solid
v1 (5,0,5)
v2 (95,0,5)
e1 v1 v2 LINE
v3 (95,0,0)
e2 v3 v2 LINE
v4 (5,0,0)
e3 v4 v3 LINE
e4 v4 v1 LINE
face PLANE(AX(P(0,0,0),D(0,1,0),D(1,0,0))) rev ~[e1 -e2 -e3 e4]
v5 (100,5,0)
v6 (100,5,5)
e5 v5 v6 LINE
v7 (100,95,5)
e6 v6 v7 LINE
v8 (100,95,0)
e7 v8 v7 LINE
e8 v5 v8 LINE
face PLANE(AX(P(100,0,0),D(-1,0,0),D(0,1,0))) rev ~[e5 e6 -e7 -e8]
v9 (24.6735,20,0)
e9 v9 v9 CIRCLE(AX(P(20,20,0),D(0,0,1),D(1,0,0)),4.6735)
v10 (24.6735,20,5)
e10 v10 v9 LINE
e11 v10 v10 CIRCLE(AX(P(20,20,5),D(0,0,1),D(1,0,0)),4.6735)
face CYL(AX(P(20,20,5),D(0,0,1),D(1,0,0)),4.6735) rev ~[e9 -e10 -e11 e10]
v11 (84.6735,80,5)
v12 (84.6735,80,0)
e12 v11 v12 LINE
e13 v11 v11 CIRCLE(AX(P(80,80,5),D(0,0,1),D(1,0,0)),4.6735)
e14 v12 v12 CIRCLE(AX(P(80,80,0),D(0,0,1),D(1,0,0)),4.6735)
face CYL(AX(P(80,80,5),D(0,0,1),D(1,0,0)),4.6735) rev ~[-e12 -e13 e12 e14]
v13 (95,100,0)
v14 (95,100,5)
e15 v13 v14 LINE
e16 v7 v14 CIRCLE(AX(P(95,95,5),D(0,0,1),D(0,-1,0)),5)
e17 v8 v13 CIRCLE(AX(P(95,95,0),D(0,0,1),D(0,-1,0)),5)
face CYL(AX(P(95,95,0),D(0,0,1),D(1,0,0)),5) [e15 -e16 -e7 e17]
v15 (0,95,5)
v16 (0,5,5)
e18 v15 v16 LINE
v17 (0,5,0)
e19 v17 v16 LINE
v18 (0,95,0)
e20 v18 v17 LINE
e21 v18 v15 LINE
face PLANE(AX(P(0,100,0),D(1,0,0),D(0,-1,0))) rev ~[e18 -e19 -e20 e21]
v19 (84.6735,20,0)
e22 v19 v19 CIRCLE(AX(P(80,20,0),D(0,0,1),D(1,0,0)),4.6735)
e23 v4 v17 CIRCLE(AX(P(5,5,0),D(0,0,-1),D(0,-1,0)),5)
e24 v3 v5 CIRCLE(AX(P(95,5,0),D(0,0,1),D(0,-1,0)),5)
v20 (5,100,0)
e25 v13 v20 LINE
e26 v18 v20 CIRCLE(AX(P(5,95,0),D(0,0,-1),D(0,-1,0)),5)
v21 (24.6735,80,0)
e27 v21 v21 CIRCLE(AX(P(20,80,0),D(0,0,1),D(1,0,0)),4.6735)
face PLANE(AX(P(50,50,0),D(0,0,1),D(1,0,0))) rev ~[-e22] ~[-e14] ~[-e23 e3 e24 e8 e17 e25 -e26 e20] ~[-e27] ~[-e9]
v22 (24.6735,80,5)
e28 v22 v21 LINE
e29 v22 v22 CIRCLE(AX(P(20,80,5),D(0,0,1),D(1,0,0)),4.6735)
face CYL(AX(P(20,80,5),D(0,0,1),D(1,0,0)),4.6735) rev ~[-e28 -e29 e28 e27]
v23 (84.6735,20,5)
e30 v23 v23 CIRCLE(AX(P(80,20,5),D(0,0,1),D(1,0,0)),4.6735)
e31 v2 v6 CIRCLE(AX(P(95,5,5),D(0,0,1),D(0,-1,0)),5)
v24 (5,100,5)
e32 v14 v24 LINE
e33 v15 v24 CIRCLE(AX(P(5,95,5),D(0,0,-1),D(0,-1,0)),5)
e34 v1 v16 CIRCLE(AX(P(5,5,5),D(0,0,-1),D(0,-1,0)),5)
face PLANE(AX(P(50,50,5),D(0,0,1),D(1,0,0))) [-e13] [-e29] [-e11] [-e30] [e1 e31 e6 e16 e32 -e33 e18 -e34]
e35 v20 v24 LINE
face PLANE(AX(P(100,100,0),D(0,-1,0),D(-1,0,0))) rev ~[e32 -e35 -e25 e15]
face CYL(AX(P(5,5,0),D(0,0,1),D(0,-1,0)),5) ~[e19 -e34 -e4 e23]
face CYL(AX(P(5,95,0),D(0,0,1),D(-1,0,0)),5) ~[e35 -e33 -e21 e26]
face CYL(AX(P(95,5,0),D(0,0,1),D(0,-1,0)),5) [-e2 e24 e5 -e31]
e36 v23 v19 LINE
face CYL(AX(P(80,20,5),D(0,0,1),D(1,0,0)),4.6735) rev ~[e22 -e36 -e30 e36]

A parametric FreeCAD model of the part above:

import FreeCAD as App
import Part
import Sketcher


def edges_at(feature, points):
    """Names of the edges that pass closest to the given points."""
    edges = feature.Shape.Edges
    near = lambda p: min(range(len(edges)), key=lambda i: edges[i].distToShape(Part.Vertex(*p))[0])
    return sorted({f"Edge{near(p) + 1}" for p in points})

doc = App.newDocument("Part")
params = doc.addObject("Spreadsheet::Sheet", "Params")
for row, (alias, value) in enumerate([
    ("sketch1_width", "100 mm"),
    ("pad1_length", "5 mm"),
    ("fillet_radius", "5 mm"),
], start=1):
    params.set(f"A{row}", alias)
    params.set(f"B{row}", "=" + value)
    params.setAlias(f"B{row}", alias)

body = doc.addObject("PartDesign::Body", "Body")

# Sketch on XY plane
sketch1 = doc.addObject("Sketcher::SketchObject", "Sketch")
body.addObject(sketch1)
sketch1.AttachmentSupport = (doc.XY_Plane, [""])
sketch1.MapMode = "FlatFace"
sketch1.addGeometry([
    Part.LineSegment(App.Vector(0, 100, 0), App.Vector(0, 0, 0)),
    Part.LineSegment(App.Vector(0, 0, 0), App.Vector(100, 0, 0)),
    Part.LineSegment(App.Vector(100, 0, 0), App.Vector(100, 100, 0)),
    Part.LineSegment(App.Vector(100, 100, 0), App.Vector(0, 100, 0)),
], False)
sketch1.addConstraint([
    Sketcher.Constraint("Coincident", 0, 2, 1, 1),
    Sketcher.Constraint("Coincident", 1, 2, 2, 1),
    Sketcher.Constraint("Coincident", 2, 2, 3, 1),
    Sketcher.Constraint("Coincident", 3, 2, 0, 1),
    Sketcher.Constraint("Vertical", 0),
    Sketcher.Constraint("Horizontal", 1),
    Sketcher.Constraint("Vertical", 2),
    Sketcher.Constraint("Horizontal", 3),
    Sketcher.Constraint("Coincident", 0, 2, -1, 1),
    Sketcher.Constraint("Equal", 3, 0),
    Sketcher.Constraint("DistanceX", 1, 1, 1, 2, 100.0),
])
sketch1.setExpression("Constraints[10]", "Params.sketch1_width")
pad1 = doc.addObject("PartDesign::Pad", "Pad")
body.addObject(pad1)
pad1.Profile = sketch1
pad1.setExpression("Length", "Params.pad1_length")

# Sketch on XY plane
sketch2 = doc.addObject("Sketcher::SketchObject", "Sketch001")
body.addObject(sketch2)
sketch2.AttachmentSupport = (doc.XY_Plane, [""])
sketch2.MapMode = "FlatFace"
sketch2.AttachmentOffset = App.Placement(App.Vector(0, 0, 5), App.Rotation())
sketch2.addGeometry([
    Part.Circle(App.Vector(20, 80, 0), App.Vector(0, 0, 1), 4.6735),
    Part.Circle(App.Vector(80, 80, 0), App.Vector(0, 0, 1), 4.6735),
    Part.Circle(App.Vector(80, 20, 0), App.Vector(0, 0, 1), 4.6735),
    Part.Circle(App.Vector(20, 20, 0), App.Vector(0, 0, 1), 4.6735),
], False)
sketch2.addConstraint([
    Sketcher.Constraint("Equal", 0, 1),
    Sketcher.Constraint("Equal", 1, 2),
    Sketcher.Constraint("Equal", 2, 3),
    Sketcher.Constraint("Horizontal", 0, 3, 1, 3),
    Sketcher.Constraint("Horizontal", 2, 3, 3, 3),
    Sketcher.Constraint("Vertical", 1, 3, 2, 3),
    Sketcher.Constraint("Vertical", 0, 3, 3, 3),
    Sketcher.Constraint("Diameter", 0, 9.347),
    Sketcher.Constraint("DistanceX", -1, 1, 0, 3, 20.0),
    Sketcher.Constraint("DistanceY", -1, 1, 0, 3, 80.0),
    Sketcher.Constraint("DistanceX", -1, 1, 1, 3, 80.0),
    Sketcher.Constraint("DistanceY", -1, 1, 2, 3, 20.0),
])
pocket1 = doc.addObject("PartDesign::Pocket", "Pocket")
body.addObject(pocket1)
pocket1.Profile = sketch2
pocket1.Type = "ThroughAll"
doc.recompute()

fillet = doc.addObject("PartDesign::Fillet", "Fillet")
body.addObject(fillet)
fillet.Base = (pocket1, edges_at(pocket1, [
    (100, 0, 2.5),
    (100, 100, 2.5),
    (0, 0, 2.5),
    (0, 100, 2.5),
]))
fillet.setExpression("Radius", "Params.fillet_radius")

doc.recompute()
